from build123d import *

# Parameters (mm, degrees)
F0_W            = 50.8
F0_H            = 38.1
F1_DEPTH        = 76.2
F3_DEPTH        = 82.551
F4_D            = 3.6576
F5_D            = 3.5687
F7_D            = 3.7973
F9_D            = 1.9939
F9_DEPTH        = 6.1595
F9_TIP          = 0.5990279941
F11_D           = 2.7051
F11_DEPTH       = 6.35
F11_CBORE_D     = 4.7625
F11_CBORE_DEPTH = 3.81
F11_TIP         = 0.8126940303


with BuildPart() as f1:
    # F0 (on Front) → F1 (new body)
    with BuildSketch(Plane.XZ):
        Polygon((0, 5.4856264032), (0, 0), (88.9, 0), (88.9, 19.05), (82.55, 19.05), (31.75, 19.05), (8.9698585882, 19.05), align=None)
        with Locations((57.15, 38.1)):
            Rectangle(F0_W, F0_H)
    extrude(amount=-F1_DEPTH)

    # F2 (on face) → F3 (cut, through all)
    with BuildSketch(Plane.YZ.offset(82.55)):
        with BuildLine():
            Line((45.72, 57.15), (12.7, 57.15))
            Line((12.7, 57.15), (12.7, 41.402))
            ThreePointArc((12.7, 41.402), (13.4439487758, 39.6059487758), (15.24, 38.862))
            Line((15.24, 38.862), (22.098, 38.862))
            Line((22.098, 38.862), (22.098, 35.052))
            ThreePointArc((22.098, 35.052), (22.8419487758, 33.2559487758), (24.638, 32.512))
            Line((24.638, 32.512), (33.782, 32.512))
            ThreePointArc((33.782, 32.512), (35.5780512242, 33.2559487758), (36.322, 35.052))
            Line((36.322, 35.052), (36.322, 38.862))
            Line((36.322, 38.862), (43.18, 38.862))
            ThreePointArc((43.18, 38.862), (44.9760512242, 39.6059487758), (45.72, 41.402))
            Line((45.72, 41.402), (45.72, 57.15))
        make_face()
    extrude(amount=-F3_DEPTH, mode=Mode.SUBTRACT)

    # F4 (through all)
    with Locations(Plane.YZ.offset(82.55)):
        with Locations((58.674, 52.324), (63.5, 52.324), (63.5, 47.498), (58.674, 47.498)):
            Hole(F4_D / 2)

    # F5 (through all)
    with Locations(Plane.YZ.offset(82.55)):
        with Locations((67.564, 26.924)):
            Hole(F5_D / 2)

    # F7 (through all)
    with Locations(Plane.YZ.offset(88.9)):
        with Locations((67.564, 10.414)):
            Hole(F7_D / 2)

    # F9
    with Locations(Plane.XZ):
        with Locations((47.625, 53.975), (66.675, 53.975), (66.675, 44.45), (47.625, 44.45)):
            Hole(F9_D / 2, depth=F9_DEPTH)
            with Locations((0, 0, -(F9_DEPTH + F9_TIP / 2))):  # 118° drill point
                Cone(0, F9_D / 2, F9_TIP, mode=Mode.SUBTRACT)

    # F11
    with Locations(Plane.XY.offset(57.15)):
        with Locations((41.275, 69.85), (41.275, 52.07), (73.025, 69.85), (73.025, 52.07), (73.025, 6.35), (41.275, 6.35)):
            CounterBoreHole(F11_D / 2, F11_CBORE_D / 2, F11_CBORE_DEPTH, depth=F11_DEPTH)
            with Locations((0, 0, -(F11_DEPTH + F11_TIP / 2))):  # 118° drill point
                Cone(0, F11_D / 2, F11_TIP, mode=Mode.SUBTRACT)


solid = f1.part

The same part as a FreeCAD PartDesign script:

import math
import FreeCAD as App
import Part
import Sketcher
from FreeCAD import Vector
Q = App.Units.Quantity

doc = App.newDocument("Part")
body = doc.addObject("PartDesign::Body", "Body")

sketch1 = body.newObject("Sketcher::SketchObject", "Sketch")
sketch1.AttachmentSupport = (doc.getObject("XZ_Plane"), [""])
sketch1.MapMode = "FlatFace"
sketch1.addGeometry([
    Part.LineSegment(Vector(0, 5.485626, 0), Vector(0, 0, 0)),
    Part.LineSegment(Vector(0, 0, 0), Vector(88.9, 0, 0)),
    Part.LineSegment(Vector(88.9, 0, 0), Vector(88.9, 19.05, 0)),
    Part.LineSegment(Vector(88.9, 19.05, 0), Vector(82.55, 19.05, 0)),
    Part.LineSegment(Vector(82.55, 19.05, 0), Vector(82.55, 57.15, 0)),
    Part.LineSegment(Vector(82.55, 57.15, 0), Vector(31.75, 57.15, 0)),
    Part.LineSegment(Vector(31.75, 57.15, 0), Vector(31.75, 19.05, 0)),
    Part.LineSegment(Vector(31.75, 19.05, 0), Vector(8.969859, 19.05, 0)),
    Part.LineSegment(Vector(8.969859, 19.05, 0), Vector(0, 5.485626, 0)),
], False)
sketch1.addConstraint([
    Sketcher.Constraint("Coincident", 0, 2, 1, 1),
    Sketcher.Constraint("Coincident", 1, 2, 2, 1),
    Sketcher.Constraint("Coincident", 2, 2, 3, 1),
    Sketcher.Constraint("Coincident", 3, 2, 4, 1),
    Sketcher.Constraint("Coincident", 4, 2, 5, 1),
    Sketcher.Constraint("Coincident", 5, 2, 6, 1),
    Sketcher.Constraint("Coincident", 6, 2, 7, 1),
    Sketcher.Constraint("Coincident", 7, 2, 8, 1),
    Sketcher.Constraint("Coincident", 8, 2, 0, 1),
    Sketcher.Constraint("Vertical", 0),
    Sketcher.Constraint("Horizontal", 1),
    Sketcher.Constraint("Vertical", 2),
    Sketcher.Constraint("Horizontal", 3),
    Sketcher.Constraint("Vertical", 4),
    Sketcher.Constraint("Horizontal", 5),
    Sketcher.Constraint("Vertical", 6),
    Sketcher.Constraint("Horizontal", 7),
    Sketcher.Constraint("Coincident", 0, 2, -1, 1),
    Sketcher.Constraint("Horizontal", 3, 2, 6, 2),
    Sketcher.Constraint("DistanceX", 5, 2, 5, 1, Q("2 in")),
    Sketcher.Constraint("DistanceX", 1, 1, 1, 2, Q("3.5 in")),
    Sketcher.Constraint("DistanceY", 4, 1, 4, 2, Q("1.5 in")),
    Sketcher.Constraint("DistanceX", 3, 2, 3, 1, Q("0.25 in")),
    Sketcher.Constraint("DistanceY", 2, 1, 2, 2, Q("0.75 in")),
    Sketcher.Constraint("DistanceX", 7, 2, 7, 1, Q("22.780141 mm")),
    Sketcher.Constraint("DistanceY", 0, 2, 0, 1, Q("5.485626 mm")),
])
pad1 = body.newObject("PartDesign::Pad", "Pad")
pad1.Profile = sketch1
pad1.Length = Q("3 in")
pad1.Reversed = True

sketch2 = body.newObject("Sketcher::SketchObject", "Sketch001")
sketch2.AttachmentSupport = (doc.getObject("YZ_Plane"), [""])
sketch2.MapMode = "FlatFace"
sketch2.AttachmentOffset = App.Placement(Vector(0, 0, 3.25 * 25.4), App.Rotation())
sketch2.addGeometry([
    Part.LineSegment(Vector(45.72, 57.15, 0), Vector(12.7, 57.15, 0)),
    Part.LineSegment(Vector(12.7, 57.15, 0), Vector(12.7, 41.402, 0)),
    Part.ArcOfCircle(Part.Circle(Vector(15.24, 41.402, 0), Vector(0, 0, 1), 2.54), math.radians(180), math.radians(270)),
    Part.LineSegment(Vector(15.24, 38.862, 0), Vector(22.098, 38.862, 0)),
    Part.LineSegment(Vector(22.098, 38.862, 0), Vector(22.098, 35.052, 0)),
    Part.ArcOfCircle(Part.Circle(Vector(24.638, 35.052, 0), Vector(0, 0, 1), 2.54), math.radians(180), math.radians(270)),
    Part.LineSegment(Vector(24.638, 32.512, 0), Vector(33.782, 32.512, 0)),
    Part.ArcOfCircle(Part.Circle(Vector(33.782, 35.052, 0), Vector(0, 0, 1), 2.54), math.radians(-90), math.radians(0)),
    Part.LineSegment(Vector(36.322, 35.052, 0), Vector(36.322, 38.862, 0)),
    Part.LineSegment(Vector(36.322, 38.862, 0), Vector(43.18, 38.862, 0)),
    Part.ArcOfCircle(Part.Circle(Vector(43.18, 41.402, 0), Vector(0, 0, 1), 2.54), math.radians(-90), math.radians(0)),
    Part.LineSegment(Vector(45.72, 41.402, 0), Vector(45.72, 57.15, 0)),
], False)
sketch2.addConstraint([
    Sketcher.Constraint("Coincident", 0, 2, 1, 1),
    Sketcher.Constraint("Tangent", 1, 2, 2, 1),
    Sketcher.Constraint("Tangent", 2, 2, 3, 1),
    Sketcher.Constraint("Coincident", 3, 2, 4, 1),
    Sketcher.Constraint("Tangent", 4, 2, 5, 1),
    Sketcher.Constraint("Tangent", 5, 2, 6, 1),
    Sketcher.Constraint("Tangent", 6, 2, 7, 1),
    Sketcher.Constraint("Tangent", 7, 2, 8, 1),
    Sketcher.Constraint("Coincident", 8, 2, 9, 1),
    Sketcher.Constraint("Tangent", 9, 2, 10, 1),
    Sketcher.Constraint("Tangent", 10, 2, 11, 1),
    Sketcher.Constraint("Coincident", 11, 2, 0, 1),
    Sketcher.Constraint("Horizontal", 0),
    Sketcher.Constraint("Vertical", 1),
    Sketcher.Constraint("Horizontal", 3),
    Sketcher.Constraint("Vertical", 4),
    Sketcher.Constraint("Horizontal", 6),
    Sketcher.Constraint("Vertical", 8),
    Sketcher.Constraint("Horizontal", 9),
    Sketcher.Constraint("Vertical", 11),
    Sketcher.Constraint("Equal", 2, 5),
    Sketcher.Constraint("Equal", 5, 7),
    Sketcher.Constraint("Equal", 7, 10),
    Sketcher.Constraint("Horizontal", 2, 3, 10, 3),
    Sketcher.Constraint("Equal", 3, 9),
    Sketcher.Constraint("Radius", 2, Q("0.1 in")),
    Sketcher.Constraint("DistanceX", 0, 2, 0, 1, Q("1.3 in")),
    Sketcher.Constraint("DistanceX", 3, 1, 3, 2, Q("0.27 in")),
    Sketcher.Constraint("DistanceY", 1, 2, 1, 1, Q("0.62 in")),
    Sketcher.Constraint("DistanceY", 4, 2, 4, 1, Q("0.15 in")),
    Sketcher.Constraint("DistanceX", -1, 1, 2, 3, Q("0.6 in")),
    Sketcher.Constraint("DistanceY", -1, 1, 2, 3, Q("1.63 in")),
])
pocket1 = body.newObject("PartDesign::Pocket", "Pocket")
pocket1.Profile = sketch2
pocket1.Type = "ThroughAll"

sketch3 = body.newObject("Sketcher::SketchObject", "Sketch002")
sketch3.AttachmentSupport = (doc.getObject("YZ_Plane"), [""])
sketch3.MapMode = "FlatFace"
sketch3.AttachmentOffset = App.Placement(Vector(0, 0, 3.25 * 25.4), App.Rotation())
sketch3.addGeometry([
    Part.Circle(Vector(58.674, 52.324, 0), Vector(0, 0, 1), 1.8288),
    Part.Circle(Vector(63.5, 52.324, 0), Vector(0, 0, 1), 1.8288),
    Part.Circle(Vector(63.5, 47.498, 0), Vector(0, 0, 1), 1.8288),
    Part.Circle(Vector(58.674, 47.498, 0), Vector(0, 0, 1), 1.8288),
], False)
sketch3.addConstraint([
    Sketcher.Constraint("Equal", 0, 1),
    Sketcher.Constraint("Equal", 1, 2),
    Sketcher.Constraint("Equal", 2, 3),
    Sketcher.Constraint("Horizontal", 0, 3, 1, 3),
    Sketcher.Constraint("Horizontal", 2, 3, 3, 3),
    Sketcher.Constraint("Vertical", 1, 3, 2, 3),
    Sketcher.Constraint("Vertical", 0, 3, 3, 3),
    Sketcher.Constraint("Diameter", 0, Q("0.144 in")),
    Sketcher.Constraint("DistanceX", -1, 1, 1, 3, Q("2.5 in")),
    Sketcher.Constraint("DistanceX", -1, 1, 0, 3, Q("2.31 in")),
    Sketcher.Constraint("DistanceY", -1, 1, 0, 3, Q("2.06 in")),
    Sketcher.Constraint("DistanceY", -1, 1, 2, 3, Q("1.87 in")),
])
doc.recompute()
hole = body.newObject("PartDesign::Hole", "Hole")
hole.Profile = sketch3
hole.ThreadType = "None"
hole.Diameter = Q("0.144 in")
hole.DepthType = "ThroughAll"

sketch4 = body.newObject("Sketcher::SketchObject", "Sketch003")
sketch4.AttachmentSupport = (doc.getObject("YZ_Plane"), [""])
sketch4.MapMode = "FlatFace"
sketch4.AttachmentOffset = App.Placement(Vector(0, 0, 3.25 * 25.4), App.Rotation())
sketch4.addGeometry(Part.Circle(Vector(67.564, 26.924, 0), Vector(0, 0, 1), 1.78435), False)
sketch4.addConstraint([
    Sketcher.Constraint("Diameter", 0, Q("0.1405 in")),
    Sketcher.Constraint("DistanceX", -1, 1, 0, 3, Q("2.66 in")),
    Sketcher.Constraint("DistanceY", -1, 1, 0, 3, Q("1.06 in")),
])
doc.recompute()
hole2 = body.newObject("PartDesign::Hole", "Hole001")
hole2.Profile = sketch4
hole2.ThreadType = "None"
hole2.Diameter = Q("0.1405 in")
hole2.DepthType = "ThroughAll"

sketch5 = body.newObject("Sketcher::SketchObject", "Sketch004")
sketch5.AttachmentSupport = (doc.getObject("YZ_Plane"), [""])
sketch5.MapMode = "FlatFace"
sketch5.AttachmentOffset = App.Placement(Vector(0, 0, 3.5 * 25.4), App.Rotation())
sketch5.addGeometry(Part.Circle(Vector(67.564, 10.414, 0), Vector(0, 0, 1), 1.89865), False)
sketch5.addConstraint([
    Sketcher.Constraint("Diameter", 0, Q("0.1495 in")),
    Sketcher.Constraint("DistanceX", -1, 1, 0, 3, Q("2.66 in")),
    Sketcher.Constraint("DistanceY", -1, 1, 0, 3, Q("0.41 in")),
])
doc.recompute()
hole3 = body.newObject("PartDesign::Hole", "Hole002")
hole3.Profile = sketch5
hole3.ThreadType = "None"
hole3.Diameter = Q("0.1495 in")
hole3.DepthType = "ThroughAll"

sketch6 = body.newObject("Sketcher::SketchObject", "Sketch005")
sketch6.AttachmentSupport = (doc.getObject("XZ_Plane"), [""])
sketch6.MapMode = "FlatFace"
sketch6.addGeometry([
    Part.Circle(Vector(47.625, 53.975, 0), Vector(0, 0, 1), 0.99695),
    Part.Circle(Vector(66.675, 53.975, 0), Vector(0, 0, 1), 0.99695),
    Part.Circle(Vector(66.675, 44.45, 0), Vector(0, 0, 1), 0.99695),
    Part.Circle(Vector(47.625, 44.45, 0), Vector(0, 0, 1), 0.99695),
], False)
sketch6.addConstraint([
    Sketcher.Constraint("Equal", 0, 1),
    Sketcher.Constraint("Equal", 1, 2),
    Sketcher.Constraint("Equal", 2, 3),
    Sketcher.Constraint("Horizontal", 0, 3, 1, 3),
    Sketcher.Constraint("Horizontal", 2, 3, 3, 3),
    Sketcher.Constraint("Vertical", 1, 3, 2, 3),
    Sketcher.Constraint("Vertical", 0, 3, 3, 3),
    Sketcher.Constraint("Diameter", 0, Q("0.0785 in")),
    Sketcher.Constraint("DistanceY", -1, 1, 2, 3, Q("1.75 in")),
    Sketcher.Constraint("DistanceX", 0, 3, 1, 3, Q("0.75 in")),
    Sketcher.Constraint("DistanceX", -1, 1, 0, 3, Q("1.875 in")),
    Sketcher.Constraint("DistanceY", -1, 1, 0, 3, Q("2.125 in")),
])
doc.recompute()
hole4 = body.newObject("PartDesign::Hole", "Hole003")
hole4.Profile = sketch6
hole4.ThreadType = "None"
hole4.Diameter = Q("0.0785 in")
hole4.DepthType = "Dimension"
hole4.Depth = Q("0.2425 in")
hole4.DrillPoint = "Angled"
hole4.DrillPointAngle = 118

sketch7 = body.newObject("Sketcher::SketchObject", "Sketch006")
sketch7.AttachmentSupport = (doc.getObject("XY_Plane"), [""])
sketch7.MapMode = "FlatFace"
sketch7.AttachmentOffset = App.Placement(Vector(0, 0, 2.25 * 25.4), App.Rotation())
sketch7.addGeometry([
    Part.Circle(Vector(41.275, 69.85, 0), Vector(0, 0, 1), 1.35255),
    Part.Circle(Vector(41.275, 52.07, 0), Vector(0, 0, 1), 1.35255),
    Part.Circle(Vector(73.025, 69.85, 0), Vector(0, 0, 1), 1.35255),
    Part.Circle(Vector(73.025, 52.07, 0), Vector(0, 0, 1), 1.35255),
    Part.Circle(Vector(73.025, 6.35, 0), Vector(0, 0, 1), 1.35255),
    Part.Circle(Vector(41.275, 6.35, 0), Vector(0, 0, 1), 1.35255),
], False)
sketch7.addConstraint([
    Sketcher.Constraint("Equal", 0, 1),
    Sketcher.Constraint("Equal", 1, 2),
    Sketcher.Constraint("Equal", 2, 3),
    Sketcher.Constraint("Equal", 3, 4),
    Sketcher.Constraint("Equal", 4, 5),
    Sketcher.Constraint("Horizontal", 0, 3, 2, 3),
    Sketcher.Constraint("Horizontal", 1, 3, 3, 3),
    Sketcher.Constraint("Horizontal", 4, 3, 5, 3),
    Sketcher.Constraint("Vertical", 0, 3, 1, 3),
    Sketcher.Constraint("Vertical", 2, 3, 3, 3),
    Sketcher.Constraint("Vertical", 3, 3, 4, 3),
    Sketcher.Constraint("Vertical", 1, 3, 5, 3),
    Sketcher.Constraint("Diameter", 0, Q("0.1065 in")),
    Sketcher.Constraint("DistanceY", 1, 3, 0, 3, Q("0.7 in")),
    Sketcher.Constraint("DistanceY", 4, 3, 3, 3, Q("1.8 in")),
    Sketcher.Constraint("DistanceY", -1, 1, 0, 3, Q("2.75 in")),
    Sketcher.Constraint("DistanceX", 0, 3, 2, 3, Q("1.25 in")),
    Sketcher.Constraint("DistanceX", -1, 1, 0, 3, Q("1.625 in")),
])
doc.recompute()
hole5 = body.newObject("PartDesign::Hole", "Hole004")
hole5.Profile = sketch7
hole5.ThreadType = "None"
hole5.Diameter = Q("0.1065 in")
hole5.DepthType = "Dimension"
hole5.Depth = Q("0.25 in")
hole5.DrillPoint = "Angled"
hole5.DrillPointAngle = 118
hole5.HoleCutType = "Counterbore"
hole5.HoleCutDiameter = Q("0.1875 in")
hole5.HoleCutDepth = Q("0.15 in")

doc.recompute()
